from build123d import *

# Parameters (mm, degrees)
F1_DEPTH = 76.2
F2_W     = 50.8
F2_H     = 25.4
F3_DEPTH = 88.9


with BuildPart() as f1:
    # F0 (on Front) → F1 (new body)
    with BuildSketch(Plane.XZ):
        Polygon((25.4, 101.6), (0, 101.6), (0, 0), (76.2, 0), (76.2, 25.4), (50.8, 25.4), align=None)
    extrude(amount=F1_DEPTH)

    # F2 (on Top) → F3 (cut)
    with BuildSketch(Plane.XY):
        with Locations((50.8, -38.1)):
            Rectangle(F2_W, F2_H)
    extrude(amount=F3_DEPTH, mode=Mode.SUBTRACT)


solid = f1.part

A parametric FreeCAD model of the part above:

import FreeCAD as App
import Part
import Sketcher

V = App.Vector
Q = App.Units.Quantity


def add_polygon(sketch, points):
    """Adds a closed chain of lines whose ends are joined by coincident constraints."""
    first, n = sketch.GeometryCount, len(points)
    for a, b in zip(points, points[1:] + points[:1]):
        sketch.addGeometry(Part.LineSegment(App.Vector(*a, 0), App.Vector(*b, 0)), False)
    for i in range(n):
        sketch.addConstraint(Sketcher.Constraint("Coincident", first + i, 2, first + (i + 1) % n, 1))

doc = App.newDocument("Part")
params = doc.addObject("Spreadsheet::Sheet", "Params")
for row, (alias, value) in enumerate([
    ("sketch1_width", "1 in"),
    ("sketch1_width2", "3 in"),
    ("sketch1_height", "4 in"),
    ("pad1_length", "3 in"),
    ("sketch2_width", "2 in"),
    ("sketch2_height", "1 in"),
    ("pocket1_length", "3.5 in"),
], start=1):
    params.set(f"A{row}", alias)
    params.set(f"B{row}", "=" + value)
    params.setAlias(f"B{row}", alias)

body = doc.addObject("PartDesign::Body", "Body")

sketch1 = body.newObject("Sketcher::SketchObject", "Sketch")
sketch1.AttachmentSupport = (doc.getObject("XZ_Plane"), [""])
sketch1.MapMode = "FlatFace"
add_polygon(sketch1, [(25, 102), (0, 102), (0, 0), (76, 0), (76, 25), (51, 25)])
sketch1.addConstraint([
    Sketcher.Constraint("Horizontal", 0),
    Sketcher.Constraint("Vertical", 1),
    Sketcher.Constraint("Horizontal", 2),
    Sketcher.Constraint("Vertical", 3),
    Sketcher.Constraint("Horizontal", 4),
    Sketcher.Constraint("Coincident", 1, 2, -1, 1),
    Sketcher.Constraint("Equal", 0, 4),
    Sketcher.Constraint("Equal", 4, 3),
    Sketcher.Constraint("DistanceX", 0, 2, 0, 1, Q("1 in")),
    Sketcher.Constraint("DistanceX", 2, 1, 2, 2, Q("3 in")),
    Sketcher.Constraint("DistanceY", 1, 2, 1, 1, Q("4 in")),
])
sketch1.setExpression("Constraints[14]", "Params.sketch1_width")
sketch1.setExpression("Constraints[15]", "Params.sketch1_width2")
sketch1.setExpression("Constraints[16]", "Params.sketch1_height")
pad1 = body.newObject("PartDesign::Pad", "Pad")
pad1.Profile = sketch1
pad1.setExpression("Length", "Params.pad1_length")

sketch2 = body.newObject("Sketcher::SketchObject", "Sketch001")
sketch2.AttachmentSupport = (doc.getObject("XY_Plane"), [""])
sketch2.MapMode = "FlatFace"
add_polygon(sketch2, [(25, -25), (25, -51), (76, -51), (76, -25)])
sketch2.addConstraint([
    Sketcher.Constraint("Vertical", 0),
    Sketcher.Constraint("Horizontal", 1),
    Sketcher.Constraint("Vertical", 2),
    Sketcher.Constraint("Horizontal", 3),
    Sketcher.Constraint("DistanceX", 1, 1, 1, 2, Q("2 in")),
    Sketcher.Constraint("DistanceY", 0, 2, 0, 1, Q("1 in")),
    Sketcher.Constraint("DistanceX", -1, 1, 0, 2, Q("1 in")),
    Sketcher.Constraint("DistanceY", 0, 2, -1, 1, Q("2 in")),
])
sketch2.setExpression("Constraints[8]", "Params.sketch2_width")
sketch2.setExpression("Constraints[9]", "Params.sketch2_height")
pocket1 = body.newObject("PartDesign::Pocket", "Pocket")
pocket1.Profile = sketch2
pocket1.setExpression("Length", "Params.pocket1_length")
pocket1.Reversed = True

doc.recompute()
